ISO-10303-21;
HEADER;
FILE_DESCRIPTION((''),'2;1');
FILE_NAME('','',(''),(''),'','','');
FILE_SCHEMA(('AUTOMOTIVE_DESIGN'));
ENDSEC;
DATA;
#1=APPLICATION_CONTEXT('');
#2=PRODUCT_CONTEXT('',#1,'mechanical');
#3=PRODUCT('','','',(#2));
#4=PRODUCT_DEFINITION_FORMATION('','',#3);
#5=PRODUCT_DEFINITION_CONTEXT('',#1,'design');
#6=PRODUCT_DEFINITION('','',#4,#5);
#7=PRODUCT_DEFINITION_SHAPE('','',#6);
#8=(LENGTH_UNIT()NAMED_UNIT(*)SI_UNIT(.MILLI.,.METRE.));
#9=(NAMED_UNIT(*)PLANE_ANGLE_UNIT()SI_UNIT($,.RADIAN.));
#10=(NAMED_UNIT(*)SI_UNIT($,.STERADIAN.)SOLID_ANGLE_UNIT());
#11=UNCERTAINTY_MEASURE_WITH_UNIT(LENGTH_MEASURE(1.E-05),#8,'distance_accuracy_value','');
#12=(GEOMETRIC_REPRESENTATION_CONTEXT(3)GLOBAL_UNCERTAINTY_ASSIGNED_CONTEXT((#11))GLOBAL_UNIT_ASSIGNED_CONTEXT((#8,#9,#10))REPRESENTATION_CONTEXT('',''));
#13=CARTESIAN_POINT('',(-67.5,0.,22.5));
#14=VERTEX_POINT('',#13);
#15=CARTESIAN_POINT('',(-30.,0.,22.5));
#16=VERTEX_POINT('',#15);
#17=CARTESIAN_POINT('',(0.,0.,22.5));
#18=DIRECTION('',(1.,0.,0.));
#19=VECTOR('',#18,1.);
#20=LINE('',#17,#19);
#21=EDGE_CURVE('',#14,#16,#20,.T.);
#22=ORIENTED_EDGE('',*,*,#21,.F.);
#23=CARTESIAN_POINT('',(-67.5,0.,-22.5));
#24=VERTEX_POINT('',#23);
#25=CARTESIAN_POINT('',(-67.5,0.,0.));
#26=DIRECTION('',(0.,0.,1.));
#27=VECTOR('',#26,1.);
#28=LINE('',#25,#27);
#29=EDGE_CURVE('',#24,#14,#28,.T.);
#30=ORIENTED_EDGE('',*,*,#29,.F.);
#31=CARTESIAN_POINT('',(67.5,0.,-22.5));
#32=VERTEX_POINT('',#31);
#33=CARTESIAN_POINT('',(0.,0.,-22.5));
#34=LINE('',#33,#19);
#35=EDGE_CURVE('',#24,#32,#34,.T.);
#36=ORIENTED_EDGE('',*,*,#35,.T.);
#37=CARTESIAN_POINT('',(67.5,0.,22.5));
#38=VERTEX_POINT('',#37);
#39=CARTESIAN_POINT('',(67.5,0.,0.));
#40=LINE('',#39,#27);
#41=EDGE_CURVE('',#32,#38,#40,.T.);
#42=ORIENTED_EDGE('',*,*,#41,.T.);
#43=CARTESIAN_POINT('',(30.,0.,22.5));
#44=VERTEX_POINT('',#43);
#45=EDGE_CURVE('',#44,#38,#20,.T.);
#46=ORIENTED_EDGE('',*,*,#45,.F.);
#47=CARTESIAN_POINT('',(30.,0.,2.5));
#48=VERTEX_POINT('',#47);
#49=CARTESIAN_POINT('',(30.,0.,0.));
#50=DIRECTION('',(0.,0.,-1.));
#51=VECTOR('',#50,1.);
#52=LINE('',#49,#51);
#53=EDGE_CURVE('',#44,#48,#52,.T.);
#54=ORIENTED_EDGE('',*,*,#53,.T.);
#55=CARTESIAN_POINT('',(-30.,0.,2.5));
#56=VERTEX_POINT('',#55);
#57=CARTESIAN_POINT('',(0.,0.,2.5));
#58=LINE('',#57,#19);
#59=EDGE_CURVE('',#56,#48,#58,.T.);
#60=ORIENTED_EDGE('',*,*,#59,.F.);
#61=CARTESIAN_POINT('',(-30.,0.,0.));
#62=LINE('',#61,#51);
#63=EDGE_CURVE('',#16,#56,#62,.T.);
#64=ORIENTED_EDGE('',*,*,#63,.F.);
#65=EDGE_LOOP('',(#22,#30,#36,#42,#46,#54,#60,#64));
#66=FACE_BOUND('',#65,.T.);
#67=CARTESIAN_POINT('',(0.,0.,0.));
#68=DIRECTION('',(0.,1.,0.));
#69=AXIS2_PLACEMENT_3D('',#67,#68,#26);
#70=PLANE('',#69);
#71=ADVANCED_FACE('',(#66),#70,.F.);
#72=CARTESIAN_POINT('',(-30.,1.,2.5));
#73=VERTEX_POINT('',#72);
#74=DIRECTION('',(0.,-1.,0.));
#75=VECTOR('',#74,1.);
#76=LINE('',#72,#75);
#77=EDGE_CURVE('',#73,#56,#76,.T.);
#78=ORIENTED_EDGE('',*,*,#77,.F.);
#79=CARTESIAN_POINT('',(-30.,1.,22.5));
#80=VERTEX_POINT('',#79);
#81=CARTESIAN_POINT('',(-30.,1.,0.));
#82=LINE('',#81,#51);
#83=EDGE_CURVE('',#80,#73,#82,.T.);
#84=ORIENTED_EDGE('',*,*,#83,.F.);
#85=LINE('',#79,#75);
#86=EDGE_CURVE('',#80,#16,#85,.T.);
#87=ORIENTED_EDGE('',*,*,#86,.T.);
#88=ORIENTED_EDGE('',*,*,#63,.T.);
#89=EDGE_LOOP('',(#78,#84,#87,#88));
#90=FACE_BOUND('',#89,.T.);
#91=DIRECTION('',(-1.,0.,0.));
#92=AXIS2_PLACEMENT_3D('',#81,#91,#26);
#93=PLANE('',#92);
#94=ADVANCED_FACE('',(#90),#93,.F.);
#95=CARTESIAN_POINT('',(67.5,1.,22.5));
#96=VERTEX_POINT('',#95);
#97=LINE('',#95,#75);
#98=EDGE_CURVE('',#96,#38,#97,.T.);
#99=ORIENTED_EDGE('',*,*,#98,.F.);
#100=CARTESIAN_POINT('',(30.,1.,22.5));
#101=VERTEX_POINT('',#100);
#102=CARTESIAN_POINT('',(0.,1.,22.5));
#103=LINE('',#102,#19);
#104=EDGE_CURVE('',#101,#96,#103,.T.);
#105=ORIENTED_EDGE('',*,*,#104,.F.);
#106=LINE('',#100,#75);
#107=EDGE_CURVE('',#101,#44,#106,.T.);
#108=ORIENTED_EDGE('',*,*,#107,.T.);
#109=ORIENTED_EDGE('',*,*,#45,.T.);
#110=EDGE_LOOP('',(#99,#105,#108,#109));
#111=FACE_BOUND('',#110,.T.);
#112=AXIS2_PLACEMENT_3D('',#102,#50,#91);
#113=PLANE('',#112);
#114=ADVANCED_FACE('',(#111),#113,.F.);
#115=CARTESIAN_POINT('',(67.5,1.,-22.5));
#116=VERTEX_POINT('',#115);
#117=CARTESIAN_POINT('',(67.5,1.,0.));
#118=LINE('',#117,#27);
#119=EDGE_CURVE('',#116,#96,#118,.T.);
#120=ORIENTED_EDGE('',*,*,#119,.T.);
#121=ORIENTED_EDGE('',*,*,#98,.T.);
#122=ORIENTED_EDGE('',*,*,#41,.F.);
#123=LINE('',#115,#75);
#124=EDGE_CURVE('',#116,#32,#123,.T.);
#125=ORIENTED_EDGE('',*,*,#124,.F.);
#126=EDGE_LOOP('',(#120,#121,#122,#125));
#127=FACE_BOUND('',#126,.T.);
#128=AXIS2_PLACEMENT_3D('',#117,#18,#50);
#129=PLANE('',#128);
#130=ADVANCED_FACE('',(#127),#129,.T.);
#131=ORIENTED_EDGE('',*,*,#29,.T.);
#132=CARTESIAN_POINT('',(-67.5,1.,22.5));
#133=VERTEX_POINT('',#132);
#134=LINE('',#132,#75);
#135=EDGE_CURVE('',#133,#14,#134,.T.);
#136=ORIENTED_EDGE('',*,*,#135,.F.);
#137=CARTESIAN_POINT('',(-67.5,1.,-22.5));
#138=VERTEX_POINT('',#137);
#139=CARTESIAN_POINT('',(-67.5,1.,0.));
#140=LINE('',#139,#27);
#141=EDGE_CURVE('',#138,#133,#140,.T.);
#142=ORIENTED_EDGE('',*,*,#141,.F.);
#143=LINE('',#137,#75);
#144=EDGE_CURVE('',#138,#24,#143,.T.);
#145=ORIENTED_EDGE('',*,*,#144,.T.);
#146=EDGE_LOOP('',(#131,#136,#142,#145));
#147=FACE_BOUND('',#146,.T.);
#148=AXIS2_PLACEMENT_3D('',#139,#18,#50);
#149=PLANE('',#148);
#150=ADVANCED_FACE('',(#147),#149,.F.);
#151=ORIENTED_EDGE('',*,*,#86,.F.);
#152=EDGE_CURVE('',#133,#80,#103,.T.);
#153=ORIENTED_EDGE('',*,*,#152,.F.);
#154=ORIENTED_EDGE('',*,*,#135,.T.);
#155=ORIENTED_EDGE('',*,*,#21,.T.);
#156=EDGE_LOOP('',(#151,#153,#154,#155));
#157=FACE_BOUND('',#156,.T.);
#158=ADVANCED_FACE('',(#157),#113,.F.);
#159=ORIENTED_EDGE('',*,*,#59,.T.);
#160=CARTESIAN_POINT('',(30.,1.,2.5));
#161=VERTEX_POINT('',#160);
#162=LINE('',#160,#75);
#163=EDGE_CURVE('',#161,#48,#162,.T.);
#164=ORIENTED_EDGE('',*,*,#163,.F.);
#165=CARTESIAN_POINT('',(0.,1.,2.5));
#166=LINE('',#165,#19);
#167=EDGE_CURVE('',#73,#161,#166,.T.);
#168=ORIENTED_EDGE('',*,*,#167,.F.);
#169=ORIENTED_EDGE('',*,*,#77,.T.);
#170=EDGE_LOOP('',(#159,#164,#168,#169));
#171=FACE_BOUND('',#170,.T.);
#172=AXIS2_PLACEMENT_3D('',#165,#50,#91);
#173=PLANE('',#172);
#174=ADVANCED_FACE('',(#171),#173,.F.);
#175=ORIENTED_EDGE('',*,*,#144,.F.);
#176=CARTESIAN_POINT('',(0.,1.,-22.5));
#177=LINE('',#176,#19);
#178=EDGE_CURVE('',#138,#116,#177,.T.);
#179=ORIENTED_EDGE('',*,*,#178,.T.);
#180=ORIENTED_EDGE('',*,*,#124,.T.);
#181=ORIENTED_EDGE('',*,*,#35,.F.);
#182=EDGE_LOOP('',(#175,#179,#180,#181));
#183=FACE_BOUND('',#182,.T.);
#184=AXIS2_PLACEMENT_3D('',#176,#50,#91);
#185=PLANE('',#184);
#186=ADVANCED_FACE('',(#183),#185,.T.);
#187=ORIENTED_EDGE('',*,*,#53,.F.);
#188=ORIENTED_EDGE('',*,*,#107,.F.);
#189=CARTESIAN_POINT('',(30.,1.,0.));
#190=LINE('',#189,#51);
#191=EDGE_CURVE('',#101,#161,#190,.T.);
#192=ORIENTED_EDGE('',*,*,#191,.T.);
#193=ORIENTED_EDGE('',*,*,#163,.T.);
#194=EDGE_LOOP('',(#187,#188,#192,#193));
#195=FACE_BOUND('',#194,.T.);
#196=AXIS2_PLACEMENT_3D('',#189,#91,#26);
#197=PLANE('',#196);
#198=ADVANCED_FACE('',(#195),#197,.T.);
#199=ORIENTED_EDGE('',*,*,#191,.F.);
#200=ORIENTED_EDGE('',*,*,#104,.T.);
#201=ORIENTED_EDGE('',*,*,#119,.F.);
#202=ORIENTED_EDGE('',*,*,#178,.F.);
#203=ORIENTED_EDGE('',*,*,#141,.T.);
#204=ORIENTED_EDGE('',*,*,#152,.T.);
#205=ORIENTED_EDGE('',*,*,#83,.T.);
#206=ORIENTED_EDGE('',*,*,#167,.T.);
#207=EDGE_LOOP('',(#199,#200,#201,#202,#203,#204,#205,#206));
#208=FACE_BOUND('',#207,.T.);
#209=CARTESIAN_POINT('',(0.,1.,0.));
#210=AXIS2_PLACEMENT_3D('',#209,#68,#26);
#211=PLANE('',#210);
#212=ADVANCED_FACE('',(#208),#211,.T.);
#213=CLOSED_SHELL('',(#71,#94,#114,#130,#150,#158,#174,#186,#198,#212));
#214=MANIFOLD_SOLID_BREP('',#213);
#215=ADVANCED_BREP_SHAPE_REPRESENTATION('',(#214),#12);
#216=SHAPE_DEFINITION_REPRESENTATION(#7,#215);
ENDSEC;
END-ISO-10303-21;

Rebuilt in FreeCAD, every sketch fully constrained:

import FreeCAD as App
import Part
import Sketcher

doc = App.newDocument("Part")
params = doc.addObject("Spreadsheet::Sheet", "Params")
for row, (alias, value) in enumerate([
    ("sketch1_width", "135 mm"),
    ("sketch1_width2", "60 mm"),
    ("sketch1_height", "45 mm"),
    ("sketch1_height2", "20 mm"),
    ("pad1_length", "1 mm"),
], start=1):
    params.set(f"A{row}", alias)
    params.set(f"B{row}", "=" + value)
    params.setAlias(f"B{row}", alias)

body = doc.addObject("PartDesign::Body", "Body")

sketch1 = body.newObject("Sketcher::SketchObject", "Sketch")
sketch1.AttachmentSupport = (doc.getObject("XZ_Plane"), [""])
sketch1.MapMode = "FlatFace"
sketch1.addGeometry([
    Part.LineSegment(App.Vector(68, -22, 0), App.Vector(-68, -22, 0)),
    Part.LineSegment(App.Vector(-68, -22, 0), App.Vector(-68, 22, 0)),
    Part.LineSegment(App.Vector(-68, 22, 0), App.Vector(-30, 22, 0)),
    Part.LineSegment(App.Vector(-30, 22, 0), App.Vector(-30, 2, 0)),
    Part.LineSegment(App.Vector(-30, 2, 0), App.Vector(30, 2, 0)),
    Part.LineSegment(App.Vector(30, 2, 0), App.Vector(30, 22, 0)),
    Part.LineSegment(App.Vector(30, 22, 0), App.Vector(68, 22, 0)),
    Part.LineSegment(App.Vector(68, 22, 0), App.Vector(68, -22, 0)),
], False)
sketch1.addConstraint([
    Sketcher.Constraint("Coincident", 0, 2, 1, 1),
    Sketcher.Constraint("Coincident", 1, 2, 2, 1),
    Sketcher.Constraint("Coincident", 2, 2, 3, 1),
    Sketcher.Constraint("Coincident", 3, 2, 4, 1),
    Sketcher.Constraint("Coincident", 4, 2, 5, 1),
    Sketcher.Constraint("Coincident", 5, 2, 6, 1),
    Sketcher.Constraint("Coincident", 6, 2, 7, 1),
    Sketcher.Constraint("Coincident", 7, 2, 0, 1),
    Sketcher.Constraint("Horizontal", 0),
    Sketcher.Constraint("Vertical", 1),
    Sketcher.Constraint("Horizontal", 2),
    Sketcher.Constraint("Vertical", 3),
    Sketcher.Constraint("Horizontal", 4),
    Sketcher.Constraint("Vertical", 5),
    Sketcher.Constraint("Horizontal", 6),
    Sketcher.Constraint("Vertical", 7),
    Sketcher.Constraint("Symmetric", 0, 2, 6, 2, -1, 1),
    Sketcher.Constraint("Symmetric", 2, 2, 5, 2, -2),
    Sketcher.Constraint("DistanceX", 0, 2, 0, 1, 135.0),
    Sketcher.Constraint("DistanceX", 4, 1, 4, 2, 60.0),
    Sketcher.Constraint("DistanceY", 1, 1, 1, 2, 45.0),
    Sketcher.Constraint("DistanceY", 3, 2, 3, 1, 20.0),
])
sketch1.setExpression("Constraints[18]", "Params.sketch1_width")
sketch1.setExpression("Constraints[19]", "Params.sketch1_width2")
sketch1.setExpression("Constraints[20]", "Params.sketch1_height")
sketch1.setExpression("Constraints[21]", "Params.sketch1_height2")
pad1 = body.newObject("PartDesign::Pad", "Pad")
pad1.Profile = sketch1
pad1.setExpression("Length", "Params.pad1_length")
pad1.Reversed = True

doc.recompute()
